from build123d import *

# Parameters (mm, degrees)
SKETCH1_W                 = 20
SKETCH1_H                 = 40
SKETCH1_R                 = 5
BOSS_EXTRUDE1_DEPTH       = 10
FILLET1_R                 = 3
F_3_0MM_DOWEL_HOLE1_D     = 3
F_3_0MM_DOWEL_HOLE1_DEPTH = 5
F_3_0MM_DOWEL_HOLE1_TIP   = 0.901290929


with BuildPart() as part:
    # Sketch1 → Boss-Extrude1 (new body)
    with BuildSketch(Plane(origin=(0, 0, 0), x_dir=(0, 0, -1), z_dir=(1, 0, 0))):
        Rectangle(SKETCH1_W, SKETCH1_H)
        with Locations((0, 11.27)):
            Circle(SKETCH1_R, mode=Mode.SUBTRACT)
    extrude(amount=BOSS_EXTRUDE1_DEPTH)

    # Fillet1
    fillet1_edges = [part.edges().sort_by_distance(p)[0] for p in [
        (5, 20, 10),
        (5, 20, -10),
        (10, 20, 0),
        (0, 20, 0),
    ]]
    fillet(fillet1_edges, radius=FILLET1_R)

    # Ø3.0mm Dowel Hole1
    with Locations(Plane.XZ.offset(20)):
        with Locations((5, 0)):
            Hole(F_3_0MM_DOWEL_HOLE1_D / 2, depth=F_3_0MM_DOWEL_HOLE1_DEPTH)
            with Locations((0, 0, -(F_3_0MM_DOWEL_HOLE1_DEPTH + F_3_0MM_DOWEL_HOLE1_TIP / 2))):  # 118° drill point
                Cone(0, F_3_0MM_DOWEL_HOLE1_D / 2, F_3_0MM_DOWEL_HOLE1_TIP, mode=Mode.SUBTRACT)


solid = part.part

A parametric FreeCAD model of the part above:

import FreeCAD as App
import Part
import Sketcher

V = App.Vector


def edges_at(feature, points):
    """Names of the edges that pass closest to the given points."""
    edges = feature.Shape.Edges
    near = lambda p: min(range(len(edges)), key=lambda i: edges[i].distToShape(Part.Vertex(*p))[0])
    return sorted({f"Edge{near(p) + 1}" for p in points})

doc = App.newDocument("Part")
body = doc.addObject("PartDesign::Body", "Body")

# Sketch on YZ plane
sketch1 = body.newObject("Sketcher::SketchObject", "Sketch")
sketch1.AttachmentSupport = (doc.getObject("YZ_Plane"), [""])
sketch1.MapMode = "FlatFace"
sketch1.addGeometry(Part.LineSegment(V(20, 10, 0), V(-20, 10, 0)), False)
sketch1.addGeometry(Part.LineSegment(V(-20, 10, 0), V(-20, -10, 0)), False)
sketch1.addGeometry(Part.LineSegment(V(-20, -10, 0), V(20, -10, 0)), False)
sketch1.addGeometry(Part.LineSegment(V(20, -10, 0), V(20, 10, 0)), False)
sketch1.addGeometry(Part.Circle(V(11, 0, 0), V(0, 0, 1), 5), False)
sketch1.addConstraint(Sketcher.Constraint("Coincident", 0, 2, 1, 1))
sketch1.addConstraint(Sketcher.Constraint("Coincident", 1, 2, 2, 1))
sketch1.addConstraint(Sketcher.Constraint("Coincident", 2, 2, 3, 1))
sketch1.addConstraint(Sketcher.Constraint("Coincident", 3, 2, 0, 1))
sketch1.addConstraint(Sketcher.Constraint("Horizontal", 0))
sketch1.addConstraint(Sketcher.Constraint("Vertical", 1))
sketch1.addConstraint(Sketcher.Constraint("Horizontal", 2))
sketch1.addConstraint(Sketcher.Constraint("Vertical", 3))
sketch1.addConstraint(Sketcher.Constraint("Symmetric", 0, 2, 2, 2, -1, 1))
sketch1.addConstraint(Sketcher.Constraint("PointOnObject", 4, 3, -1))
sketch1.addConstraint(Sketcher.Constraint("Diameter", 4, 10.0))
sketch1.addConstraint(Sketcher.Constraint("DistanceX", 0, 2, 0, 1, 40.0))
sketch1.addConstraint(Sketcher.Constraint("DistanceY", 1, 2, 1, 1, 20.0))
sketch1.addConstraint(Sketcher.Constraint("DistanceX", -1, 1, 4, 3, 11.27))
pad1 = body.newObject("PartDesign::Pad", "Pad")
pad1.Profile = sketch1
pad1.Length = 10
doc.recompute()

fillet = body.newObject("PartDesign::Fillet", "Fillet")
fillet.Base = (pad1, edges_at(pad1, [
    (5, 20, 10),
    (5, 20, -10),
    (10, 20, 0),
    (0, 20, 0),
]))
fillet.Radius = 3

# Sketch on XZ plane
sketch2 = body.newObject("Sketcher::SketchObject", "Sketch001")
sketch2.AttachmentSupport = (doc.getObject("XZ_Plane"), [""])
sketch2.MapMode = "FlatFace"
sketch2.AttachmentOffset = App.Placement(V(0, 0, 20), App.Rotation())
sketch2.addGeometry(Part.Circle(V(5, 0, 0), V(0, 0, 1), 1.5), False)
sketch2.addConstraint(Sketcher.Constraint("PointOnObject", 0, 3, -1))
sketch2.addConstraint(Sketcher.Constraint("Diameter", 0, 3.0))
sketch2.addConstraint(Sketcher.Constraint("DistanceX", -1, 1, 0, 3, 5.0))
doc.recompute()
hole = body.newObject("PartDesign::Hole", "Hole")
hole.Profile = sketch2
hole.ThreadType = "None"
hole.Diameter = 3
hole.DepthType = "Dimension"
hole.Depth = 5
hole.DrillPoint = "Angled"
hole.DrillPointAngle = 118

doc.recompute()
